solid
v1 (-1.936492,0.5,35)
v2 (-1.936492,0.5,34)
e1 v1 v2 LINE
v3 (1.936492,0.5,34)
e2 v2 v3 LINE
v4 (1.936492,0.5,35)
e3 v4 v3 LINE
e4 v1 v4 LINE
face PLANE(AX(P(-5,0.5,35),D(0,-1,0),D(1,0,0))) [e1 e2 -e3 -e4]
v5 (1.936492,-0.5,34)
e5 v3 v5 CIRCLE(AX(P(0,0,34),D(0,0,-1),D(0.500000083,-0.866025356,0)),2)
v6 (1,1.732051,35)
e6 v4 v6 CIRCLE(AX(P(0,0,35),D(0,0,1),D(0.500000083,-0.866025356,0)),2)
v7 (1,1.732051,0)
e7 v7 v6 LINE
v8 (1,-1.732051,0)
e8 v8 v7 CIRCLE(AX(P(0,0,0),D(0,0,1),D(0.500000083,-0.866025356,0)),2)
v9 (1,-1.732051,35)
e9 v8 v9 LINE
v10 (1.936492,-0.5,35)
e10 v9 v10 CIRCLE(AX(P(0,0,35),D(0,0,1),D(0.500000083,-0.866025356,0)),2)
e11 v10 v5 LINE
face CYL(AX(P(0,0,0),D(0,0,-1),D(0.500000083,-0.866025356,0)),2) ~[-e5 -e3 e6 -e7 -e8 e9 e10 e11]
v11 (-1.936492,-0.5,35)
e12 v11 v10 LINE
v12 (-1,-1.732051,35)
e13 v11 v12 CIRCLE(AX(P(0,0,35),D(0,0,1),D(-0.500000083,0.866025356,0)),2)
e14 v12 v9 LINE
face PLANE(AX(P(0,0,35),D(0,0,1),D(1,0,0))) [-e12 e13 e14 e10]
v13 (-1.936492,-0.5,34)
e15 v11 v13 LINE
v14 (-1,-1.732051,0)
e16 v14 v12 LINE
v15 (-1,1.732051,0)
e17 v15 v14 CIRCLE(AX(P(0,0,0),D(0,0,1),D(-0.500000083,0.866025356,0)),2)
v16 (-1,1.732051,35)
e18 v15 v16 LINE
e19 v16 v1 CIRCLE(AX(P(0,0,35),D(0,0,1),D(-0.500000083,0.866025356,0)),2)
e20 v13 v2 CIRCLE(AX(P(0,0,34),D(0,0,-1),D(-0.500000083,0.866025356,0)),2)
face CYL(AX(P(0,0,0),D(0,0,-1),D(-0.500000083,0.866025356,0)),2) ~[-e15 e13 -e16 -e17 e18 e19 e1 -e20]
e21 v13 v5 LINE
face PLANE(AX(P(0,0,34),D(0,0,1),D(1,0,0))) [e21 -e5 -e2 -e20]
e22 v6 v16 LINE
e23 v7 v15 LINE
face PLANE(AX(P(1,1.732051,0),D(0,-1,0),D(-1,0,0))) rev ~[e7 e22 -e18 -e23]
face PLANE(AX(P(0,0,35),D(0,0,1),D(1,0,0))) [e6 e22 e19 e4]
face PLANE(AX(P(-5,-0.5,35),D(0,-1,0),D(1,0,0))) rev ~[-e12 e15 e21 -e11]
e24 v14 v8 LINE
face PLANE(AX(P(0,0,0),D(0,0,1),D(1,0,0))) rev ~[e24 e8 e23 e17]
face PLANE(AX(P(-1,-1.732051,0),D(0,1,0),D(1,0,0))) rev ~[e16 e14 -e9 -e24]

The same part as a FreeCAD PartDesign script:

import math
import FreeCAD as App
import Part
import Sketcher
from FreeCAD import Vector

doc = App.newDocument("Part")
params = doc.addObject("Spreadsheet::Sheet", "Params")
for row, (alias, value) in enumerate([
    ("sketch1_radius", "2 mm"),
    ("sketch1_width", "2 mm"),
    ("pad1_length", "35 mm"),
    ("sketch2_width", "10 mm"),
    ("sketch2_height", "1 mm"),
    ("pocket1_length", "1 mm"),
], start=1):
    params.set(f"A{row}", alias)
    params.set(f"B{row}", "=" + value)
    params.setAlias(f"B{row}", alias)

body = doc.addObject("PartDesign::Body", "Body")

# Sketch on XY plane
sketch1 = body.newObject("Sketcher::SketchObject", "Sketch")
sketch1.AttachmentSupport = (doc.getObject("XY_Plane"), [""])
sketch1.MapMode = "FlatFace"
sketch1.addGeometry([
    Part.LineSegment(Vector(-1, -1.732051, 0), Vector(1, -1.732051, 0)),
    Part.ArcOfCircle(Part.Circle(Vector(0, 0, 0), Vector(0, 0, 1), 2), math.radians(-59.999994), math.radians(59.999994)),
    Part.LineSegment(Vector(1, 1.732051, 0), Vector(-1, 1.732051, 0)),
    Part.ArcOfCircle(Part.Circle(Vector(0, 0, 0), Vector(0, 0, 1), 2), math.radians(120.000006), math.radians(239.999994)),
], False)
sketch1.addConstraint([
    Sketcher.Constraint("Coincident", 0, 2, 1, 1),
    Sketcher.Constraint("Coincident", 1, 2, 2, 1),
    Sketcher.Constraint("Coincident", 2, 2, 3, 1),
    Sketcher.Constraint("Coincident", 3, 2, 0, 1),
    Sketcher.Constraint("Horizontal", 0),
    Sketcher.Constraint("Horizontal", 2),
    Sketcher.Constraint("Coincident", 1, 3, -1, 1),
    Sketcher.Constraint("Coincident", 3, 3, -1, 1),
    Sketcher.Constraint("Equal", 1, 3),
    Sketcher.Constraint("Vertical", 0, 2, 1, 2),
    Sketcher.Constraint("Radius", 1, 2.0),
    Sketcher.Constraint("DistanceX", 0, 1, 0, 2, 2.0),
])
sketch1.setExpression("Constraints[10]", "Params.sketch1_radius")
sketch1.setExpression("Constraints[11]", "Params.sketch1_width")
pad1 = body.newObject("PartDesign::Pad", "Pad")
pad1.Profile = sketch1
pad1.setExpression("Length", "Params.pad1_length")

# Sketch on XY plane
sketch2 = body.newObject("Sketcher::SketchObject", "Sketch001")
sketch2.AttachmentSupport = (doc.getObject("XY_Plane"), [""])
sketch2.MapMode = "FlatFace"
sketch2.AttachmentOffset = App.Placement(Vector(0, 0, 35), App.Rotation())
sketch2.addGeometry([
    Part.LineSegment(Vector(-5, 0.5, 0), Vector(-5, -0.5, 0)),
    Part.LineSegment(Vector(-5, -0.5, 0), Vector(5, -0.5, 0)),
    Part.LineSegment(Vector(5, -0.5, 0), Vector(5, 0.5, 0)),
    Part.LineSegment(Vector(5, 0.5, 0), Vector(-5, 0.5, 0)),
], False)
sketch2.addConstraint([
    Sketcher.Constraint("Coincident", 0, 2, 1, 1),
    Sketcher.Constraint("Coincident", 1, 2, 2, 1),
    Sketcher.Constraint("Coincident", 2, 2, 3, 1),
    Sketcher.Constraint("Coincident", 3, 2, 0, 1),
    Sketcher.Constraint("Vertical", 0),
    Sketcher.Constraint("Horizontal", 1),
    Sketcher.Constraint("Vertical", 2),
    Sketcher.Constraint("Horizontal", 3),
    Sketcher.Constraint("Symmetric", 0, 2, 2, 2, -1, 1),
    Sketcher.Constraint("DistanceX", 1, 1, 1, 2, 10.0),
    Sketcher.Constraint("DistanceY", 0, 2, 0, 1, 1.0),
])
sketch2.setExpression("Constraints[9]", "Params.sketch2_width")
sketch2.setExpression("Constraints[10]", "Params.sketch2_height")
pocket1 = body.newObject("PartDesign::Pocket", "Pocket")
pocket1.Profile = sketch2
pocket1.setExpression("Length", "Params.pocket1_length")

doc.recompute()
